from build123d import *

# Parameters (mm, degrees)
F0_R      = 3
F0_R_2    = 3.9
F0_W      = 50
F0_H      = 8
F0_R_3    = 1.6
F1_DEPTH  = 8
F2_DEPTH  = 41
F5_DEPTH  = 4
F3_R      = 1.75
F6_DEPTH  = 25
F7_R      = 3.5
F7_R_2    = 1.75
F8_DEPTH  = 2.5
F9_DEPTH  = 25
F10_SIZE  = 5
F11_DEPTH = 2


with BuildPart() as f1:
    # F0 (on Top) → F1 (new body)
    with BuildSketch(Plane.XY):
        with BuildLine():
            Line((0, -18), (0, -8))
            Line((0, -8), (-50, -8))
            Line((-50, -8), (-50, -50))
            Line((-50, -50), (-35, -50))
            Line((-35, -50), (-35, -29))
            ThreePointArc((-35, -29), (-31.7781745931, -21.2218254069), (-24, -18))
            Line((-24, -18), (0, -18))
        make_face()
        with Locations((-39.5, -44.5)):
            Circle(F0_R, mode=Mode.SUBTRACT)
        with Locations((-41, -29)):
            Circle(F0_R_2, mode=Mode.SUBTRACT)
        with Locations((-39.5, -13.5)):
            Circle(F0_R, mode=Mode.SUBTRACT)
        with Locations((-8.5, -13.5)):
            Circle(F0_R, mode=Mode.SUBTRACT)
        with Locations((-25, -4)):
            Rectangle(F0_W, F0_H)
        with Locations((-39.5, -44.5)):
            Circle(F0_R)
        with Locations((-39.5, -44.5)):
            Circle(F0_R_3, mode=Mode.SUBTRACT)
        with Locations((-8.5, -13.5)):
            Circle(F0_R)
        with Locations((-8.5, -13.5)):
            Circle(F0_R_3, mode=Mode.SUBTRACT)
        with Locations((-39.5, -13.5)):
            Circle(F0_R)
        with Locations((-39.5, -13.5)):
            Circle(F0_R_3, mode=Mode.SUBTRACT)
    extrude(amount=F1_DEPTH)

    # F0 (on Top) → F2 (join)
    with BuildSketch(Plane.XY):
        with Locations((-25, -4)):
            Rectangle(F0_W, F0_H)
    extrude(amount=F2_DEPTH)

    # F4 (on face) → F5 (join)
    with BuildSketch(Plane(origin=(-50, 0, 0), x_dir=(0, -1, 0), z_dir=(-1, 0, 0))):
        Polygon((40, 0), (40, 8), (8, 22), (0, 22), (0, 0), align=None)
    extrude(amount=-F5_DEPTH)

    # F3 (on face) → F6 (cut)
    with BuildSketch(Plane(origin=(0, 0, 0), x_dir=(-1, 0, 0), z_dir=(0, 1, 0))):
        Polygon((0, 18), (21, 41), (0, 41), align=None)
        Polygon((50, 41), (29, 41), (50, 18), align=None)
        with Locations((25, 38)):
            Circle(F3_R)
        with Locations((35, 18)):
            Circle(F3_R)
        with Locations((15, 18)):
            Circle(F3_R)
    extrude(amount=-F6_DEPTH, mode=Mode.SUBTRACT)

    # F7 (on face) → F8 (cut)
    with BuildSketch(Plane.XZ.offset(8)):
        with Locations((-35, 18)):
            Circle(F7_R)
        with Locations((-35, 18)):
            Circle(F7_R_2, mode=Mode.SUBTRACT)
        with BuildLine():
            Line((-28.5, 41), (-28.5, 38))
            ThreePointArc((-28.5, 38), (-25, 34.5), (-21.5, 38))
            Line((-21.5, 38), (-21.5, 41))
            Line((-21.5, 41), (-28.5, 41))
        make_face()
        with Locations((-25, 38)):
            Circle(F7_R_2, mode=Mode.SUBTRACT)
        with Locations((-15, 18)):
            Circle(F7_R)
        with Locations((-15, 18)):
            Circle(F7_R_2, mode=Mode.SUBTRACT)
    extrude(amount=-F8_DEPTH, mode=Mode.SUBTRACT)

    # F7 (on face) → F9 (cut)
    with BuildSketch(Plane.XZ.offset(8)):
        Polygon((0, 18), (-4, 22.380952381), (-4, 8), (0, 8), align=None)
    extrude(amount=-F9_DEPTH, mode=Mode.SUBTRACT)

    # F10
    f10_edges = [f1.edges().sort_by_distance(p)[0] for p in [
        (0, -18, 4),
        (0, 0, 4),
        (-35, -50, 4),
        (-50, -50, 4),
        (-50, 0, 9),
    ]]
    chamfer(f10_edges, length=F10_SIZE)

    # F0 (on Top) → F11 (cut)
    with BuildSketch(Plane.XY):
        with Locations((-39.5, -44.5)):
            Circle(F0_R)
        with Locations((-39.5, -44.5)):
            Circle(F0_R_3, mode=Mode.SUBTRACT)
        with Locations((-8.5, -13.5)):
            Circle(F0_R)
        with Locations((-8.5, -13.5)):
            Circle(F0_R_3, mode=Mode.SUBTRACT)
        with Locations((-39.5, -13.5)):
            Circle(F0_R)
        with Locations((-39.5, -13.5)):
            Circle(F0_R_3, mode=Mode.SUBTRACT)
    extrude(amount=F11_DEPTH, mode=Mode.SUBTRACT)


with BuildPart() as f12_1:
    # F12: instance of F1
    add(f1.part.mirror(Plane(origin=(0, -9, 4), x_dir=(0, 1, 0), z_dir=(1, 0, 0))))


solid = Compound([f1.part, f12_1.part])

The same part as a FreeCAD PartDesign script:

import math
import FreeCAD as App
import Part
import Sketcher
from FreeCAD import Vector


def edges_at(feature, points):
    """Names of the edges that pass closest to the given points."""
    edges = feature.Shape.Edges
    near = lambda p: min(range(len(edges)), key=lambda i: edges[i].distToShape(Part.Vertex(*p))[0])
    return sorted({f"Edge{near(p) + 1}" for p in points})

doc = App.newDocument("Part")
body = doc.addObject("PartDesign::Body", "Body")

# Sketch on XY plane
sketch1 = doc.addObject("Sketcher::SketchObject", "Sketch")
body.addObject(sketch1)
sketch1.AttachmentSupport = (doc.XY_Plane, [""])
sketch1.MapMode = "FlatFace"
sketch1.addGeometry([
    Part.LineSegment(Vector(0, -18, 0), Vector(0, 0, 0)),  # 0
    Part.LineSegment(Vector(0, 0, 0), Vector(-50, 0, 0)),  # 1
    Part.LineSegment(Vector(-50, 0, 0), Vector(-50, -50, 0)),  # 2
    Part.LineSegment(Vector(-50, -50, 0), Vector(-35, -50, 0)),  # 3
    Part.LineSegment(Vector(-35, -50, 0), Vector(-35, -29, 0)),  # 4
    Part.ArcOfCircle(Part.Circle(Vector(-24, -29, 0), Vector(0, 0, 1), 11), math.radians(90), math.radians(180)),  # 5
    Part.LineSegment(Vector(-24, -18, 0), Vector(0, -18, 0)),  # 6
    Part.Circle(Vector(-39.5, -44.5, 0), Vector(0, 0, 1), 1.6),  # 7
    Part.Circle(Vector(-41, -29, 0), Vector(0, 0, 1), 3.9),  # 8
    Part.Circle(Vector(-39.5, -13.5, 0), Vector(0, 0, 1), 1.6),  # 9
    Part.Circle(Vector(-8.5, -13.5, 0), Vector(0, 0, 1), 1.6),  # 10
], False)
sketch1.addConstraint([
    Sketcher.Constraint("Coincident", 0, 2, 1, 1),
    Sketcher.Constraint("Coincident", 1, 2, 2, 1),
    Sketcher.Constraint("Coincident", 2, 2, 3, 1),
    Sketcher.Constraint("Coincident", 3, 2, 4, 1),
    Sketcher.Constraint("Tangent", 4, 2, 5, 2),
    Sketcher.Constraint("Tangent", 5, 1, 6, 1),
    Sketcher.Constraint("Coincident", 6, 2, 0, 1),
    Sketcher.Constraint("Vertical", 0),
    Sketcher.Constraint("Horizontal", 1),
    Sketcher.Constraint("Vertical", 2),
    Sketcher.Constraint("Horizontal", 3),
    Sketcher.Constraint("Vertical", 4),
    Sketcher.Constraint("Horizontal", 6),
    Sketcher.Constraint("Coincident", 0, 2, -1, 1),
    Sketcher.Constraint("Equal", 7, 9),
    Sketcher.Constraint("Equal", 9, 10),
    Sketcher.Constraint("Horizontal", 5, 3, 8, 3),
    Sketcher.Constraint("Horizontal", 9, 3, 10, 3),
    Sketcher.Constraint("Vertical", 7, 3, 9, 3),
    Sketcher.Constraint("Equal", 1, 2),
    Sketcher.Constraint("Radius", 5, 11.0),
    Sketcher.Constraint("Diameter", 7, 3.2),
    Sketcher.Constraint("Diameter", 8, 7.8),
    Sketcher.Constraint("DistanceX", 1, 2, 1, 1, 50.0),
    Sketcher.Constraint("DistanceX", 3, 1, 3, 2, 15.0),
    Sketcher.Constraint("DistanceY", 0, 1, 0, 2, 18.0),
    Sketcher.Constraint("DistanceX", 8, 3, -1, 1, 41.0),
    Sketcher.Constraint("DistanceY", 7, 3, 9, 3, 31.0),
    Sketcher.Constraint("DistanceX", 9, 3, 10, 3, 31.0),
    Sketcher.Constraint("DistanceX", 7, 3, -1, 1, 39.5),
    Sketcher.Constraint("DistanceY", 7, 3, -1, 1, 44.5),
])
pad1 = doc.addObject("PartDesign::Pad", "Pad")
body.addObject(pad1)
pad1.Profile = sketch1
pad1.Length = 8

# Sketch on XY plane
sketch2 = doc.addObject("Sketcher::SketchObject", "Sketch001")
body.addObject(sketch2)
sketch2.AttachmentSupport = (doc.XY_Plane, [""])
sketch2.MapMode = "FlatFace"
sketch2.addGeometry([
    Part.LineSegment(Vector(-50, 0, 0), Vector(-50, -8, 0)),
    Part.LineSegment(Vector(-50, -8, 0), Vector(0, -8, 0)),
    Part.LineSegment(Vector(0, -8, 0), Vector(0, 0, 0)),
    Part.LineSegment(Vector(0, 0, 0), Vector(-50, 0, 0)),
], False)
sketch2.addConstraint([
    Sketcher.Constraint("Coincident", 0, 2, 1, 1),
    Sketcher.Constraint("Coincident", 1, 2, 2, 1),
    Sketcher.Constraint("Coincident", 2, 2, 3, 1),
    Sketcher.Constraint("Coincident", 3, 2, 0, 1),
    Sketcher.Constraint("Vertical", 0),
    Sketcher.Constraint("Horizontal", 1),
    Sketcher.Constraint("Vertical", 2),
    Sketcher.Constraint("Horizontal", 3),
    Sketcher.Constraint("Coincident", 2, 2, -1, 1),
    Sketcher.Constraint("DistanceX", 1, 1, 1, 2, 50.0),
    Sketcher.Constraint("DistanceY", 0, 2, 0, 1, 8.0),
])
pad2 = doc.addObject("PartDesign::Pad", "Pad001")
body.addObject(pad2)
pad2.Profile = sketch2
pad2.Length = 41

# Sketch on YZ plane
sketch3 = doc.addObject("Sketcher::SketchObject", "Sketch002")
body.addObject(sketch3)
sketch3.AttachmentSupport = (doc.YZ_Plane, [""])
sketch3.MapMode = "FlatFace"
sketch3.AttachmentOffset = App.Placement(Vector(0, 0, -50), App.Rotation())
sketch3.addGeometry([
    Part.LineSegment(Vector(-40, 0, 0), Vector(-40, 8, 0)),  # 0
    Part.LineSegment(Vector(-40, 8, 0), Vector(-8, 22, 0)),  # 1
    Part.LineSegment(Vector(-8, 22, 0), Vector(0, 22, 0)),  # 2
    Part.LineSegment(Vector(0, 22, 0), Vector(0, 0, 0)),  # 3
    Part.LineSegment(Vector(0, 0, 0), Vector(-40, 0, 0)),  # 4
], False)
sketch3.addConstraint([
    Sketcher.Constraint("Coincident", 0, 2, 1, 1),
    Sketcher.Constraint("Coincident", 1, 2, 2, 1),
    Sketcher.Constraint("Coincident", 2, 2, 3, 1),
    Sketcher.Constraint("Coincident", 3, 2, 4, 1),
    Sketcher.Constraint("Coincident", 4, 2, 0, 1),
    Sketcher.Constraint("Vertical", 0),
    Sketcher.Constraint("Horizontal", 2),
    Sketcher.Constraint("Vertical", 3),
    Sketcher.Constraint("Horizontal", 4),
    Sketcher.Constraint("Coincident", 3, 2, -1, 1),
    Sketcher.Constraint("Equal", 2, 0),
    Sketcher.Constraint("DistanceX", 2, 1, 2, 2, 8.0),
    Sketcher.Constraint("DistanceX", 4, 2, 4, 1, 40.0),
    Sketcher.Constraint("DistanceY", 3, 2, 3, 1, 22.0),
])
pad3 = doc.addObject("PartDesign::Pad", "Pad002")
body.addObject(pad3)
pad3.Profile = sketch3
pad3.Length = 4

# Sketch on XZ plane
sketch4 = doc.addObject("Sketcher::SketchObject", "Sketch003")
body.addObject(sketch4)
sketch4.AttachmentSupport = (doc.XZ_Plane, [""])
sketch4.MapMode = "FlatFace"
sketch4.addGeometry([
    Part.LineSegment(Vector(0, 18, 0), Vector(-21, 41, 0)),  # 0
    Part.LineSegment(Vector(-21, 41, 0), Vector(0, 41, 0)),  # 1
    Part.LineSegment(Vector(0, 41, 0), Vector(0, 18, 0)),  # 2
    Part.LineSegment(Vector(-50, 41, 0), Vector(-29, 41, 0)),  # 3
    Part.LineSegment(Vector(-29, 41, 0), Vector(-50, 18, 0)),  # 4
    Part.LineSegment(Vector(-50, 18, 0), Vector(-50, 41, 0)),  # 5
    Part.Circle(Vector(-25, 38, 0), Vector(0, 0, 1), 1.75),  # 6
    Part.Circle(Vector(-35, 18, 0), Vector(0, 0, 1), 1.75),  # 7
    Part.Circle(Vector(-15, 18, 0), Vector(0, 0, 1), 1.75),  # 8
], False)
sketch4.addConstraint([
    Sketcher.Constraint("Coincident", 0, 2, 1, 1),
    Sketcher.Constraint("Coincident", 1, 2, 2, 1),
    Sketcher.Constraint("Coincident", 2, 2, 0, 1),
    Sketcher.Constraint("Coincident", 3, 2, 4, 1),
    Sketcher.Constraint("Coincident", 4, 2, 5, 1),
    Sketcher.Constraint("Coincident", 5, 2, 3, 1),
    Sketcher.Constraint("Horizontal", 1),
    Sketcher.Constraint("Vertical", 2),
    Sketcher.Constraint("Horizontal", 3),
    Sketcher.Constraint("Vertical", 5),
    Sketcher.Constraint("Equal", 6, 7),
    Sketcher.Constraint("Equal", 7, 8),
    Sketcher.Constraint("PointOnObject", 1, 2, -2),
    Sketcher.Constraint("Horizontal", 7, 3, 8, 3),
    Sketcher.Constraint("Horizontal", 8, 3, 2, 2),
    Sketcher.Constraint("Horizontal", 1, 2, 3, 2),
    Sketcher.Constraint("Horizontal", 2, 2, 4, 2),
    Sketcher.Constraint("Equal", 1, 3),
    Sketcher.Constraint("Diameter", 6, 3.5),
    Sketcher.Constraint("DistanceX", 1, 1, 1, 2, 21.0),
    Sketcher.Constraint("DistanceY", 2, 2, 2, 1, 23.0),
    Sketcher.Constraint("DistanceX", 6, 3, -1, 1, 25.0),
    Sketcher.Constraint("DistanceY", -1, 1, 6, 3, 38.0),
    Sketcher.Constraint("DistanceX", 7, 3, -1, 1, 35.0),
    Sketcher.Constraint("DistanceY", -1, 1, 7, 3, 18.0),
    Sketcher.Constraint("DistanceX", 8, 3, -1, 1, 15.0),
    Sketcher.Constraint("DistanceX", 3, 2, -1, 1, 29.0),
])
pocket1 = doc.addObject("PartDesign::Pocket", "Pocket")
body.addObject(pocket1)
pocket1.Profile = sketch4
pocket1.Length = 25
pocket1.Reversed = True

# Sketch on XZ plane
sketch5 = doc.addObject("Sketcher::SketchObject", "Sketch004")
body.addObject(sketch5)
sketch5.AttachmentSupport = (doc.XZ_Plane, [""])
sketch5.MapMode = "FlatFace"
sketch5.AttachmentOffset = App.Placement(Vector(0, 0, 8), App.Rotation())
sketch5.addGeometry([
    Part.Circle(Vector(-35, 18, 0), Vector(0, 0, 1), 3.5),  # 0
    Part.Circle(Vector(-35, 18, 0), Vector(0, 0, 1), 1.75),  # 1
    Part.LineSegment(Vector(-28.5, 41, 0), Vector(-28.5, 38, 0)),  # 2
    Part.ArcOfCircle(Part.Circle(Vector(-25, 38, 0), Vector(0, 0, 1), 3.5), math.radians(180), math.radians(360)),  # 3
    Part.LineSegment(Vector(-21.5, 38, 0), Vector(-21.5, 41, 0)),  # 4
    Part.LineSegment(Vector(-21.5, 41, 0), Vector(-28.5, 41, 0)),  # 5
    Part.Circle(Vector(-25, 38, 0), Vector(0, 0, 1), 1.75),  # 6
    Part.Circle(Vector(-15, 18, 0), Vector(0, 0, 1), 3.5),  # 7
    Part.Circle(Vector(-15, 18, 0), Vector(0, 0, 1), 1.75),  # 8
], False)
sketch5.addConstraint([
    Sketcher.Constraint("Tangent", 2, 2, 3, 1),
    Sketcher.Constraint("Tangent", 3, 2, 4, 1),
    Sketcher.Constraint("Coincident", 4, 2, 5, 1),
    Sketcher.Constraint("Coincident", 5, 2, 2, 1),
    Sketcher.Constraint("Vertical", 2),
    Sketcher.Constraint("Vertical", 4),
    Sketcher.Constraint("Horizontal", 5),
    Sketcher.Constraint("Coincident", 1, 3, 0, 3),
    Sketcher.Constraint("Coincident", 6, 3, 3, 3),
    Sketcher.Constraint("Coincident", 8, 3, 7, 3),
    Sketcher.Constraint("Equal", 0, 3),
    Sketcher.Constraint("Equal", 1, 6),
    Sketcher.Constraint("Equal", 3, 7),
    Sketcher.Constraint("Equal", 6, 8),
    Sketcher.Constraint("Horizontal", 1, 3, 7, 3),
    Sketcher.Constraint("Diameter", 0, 7.0),
    Sketcher.Constraint("Diameter", 1, 3.5),
    Sketcher.Constraint("DistanceY", 2, 2, 2, 1, 3.0),
    Sketcher.Constraint("DistanceX", 0, 3, -1, 1, 35.0),
    Sketcher.Constraint("DistanceY", -1, 1, 0, 3, 18.0),
    Sketcher.Constraint("DistanceX", 3, 3, -1, 1, 25.0),
    Sketcher.Constraint("DistanceY", -1, 1, 3, 3, 38.0),
    Sketcher.Constraint("DistanceX", 7, 3, -1, 1, 15.0),
])
pocket2 = doc.addObject("PartDesign::Pocket", "Pocket001")
body.addObject(pocket2)
pocket2.Profile = sketch5
pocket2.Length = 2.5

# Sketch on XZ plane
sketch6 = doc.addObject("Sketcher::SketchObject", "Sketch005")
body.addObject(sketch6)
sketch6.AttachmentSupport = (doc.XZ_Plane, [""])
sketch6.MapMode = "FlatFace"
sketch6.AttachmentOffset = App.Placement(Vector(0, 0, 8), App.Rotation())
sketch6.addGeometry([
    Part.LineSegment(Vector(0, 18, 0), Vector(-4, 22.380952, 0)),
    Part.LineSegment(Vector(-4, 22.380952, 0), Vector(-4, 8, 0)),
    Part.LineSegment(Vector(-4, 8, 0), Vector(0, 8, 0)),
    Part.LineSegment(Vector(0, 8, 0), Vector(0, 18, 0)),
], False)
sketch6.addConstraint([
    Sketcher.Constraint("Coincident", 0, 2, 1, 1),
    Sketcher.Constraint("Coincident", 1, 2, 2, 1),
    Sketcher.Constraint("Coincident", 2, 2, 3, 1),
    Sketcher.Constraint("Coincident", 3, 2, 0, 1),
    Sketcher.Constraint("Vertical", 1),
    Sketcher.Constraint("Horizontal", 2),
    Sketcher.Constraint("Vertical", 3),
    Sketcher.Constraint("PointOnObject", 2, 2, -2),
    Sketcher.Constraint("DistanceX", 2, 1, 2, 2, 4.0),
    Sketcher.Constraint("DistanceY", 3, 1, 3, 2, 10.0),
    Sketcher.Constraint("DistanceY", -1, 1, 1, 2, 8.0),
    Sketcher.Constraint("DistanceY", 1, 2, 1, 1, 14.380952),
])
pocket3 = doc.addObject("PartDesign::Pocket", "Pocket002")
body.addObject(pocket3)
pocket3.Profile = sketch6
pocket3.Length = 25
doc.recompute()

chamfer = doc.addObject("PartDesign::Chamfer", "Chamfer")
body.addObject(chamfer)
chamfer.Base = (pocket3, edges_at(pocket3, [
    (0, -18, 4),
    (0, 0, 4),
    (-35, -50, 4),
    (-50, -50, 4),
    (-50, 0, 9),
]))
chamfer.Size = 5

# Sketch on XY plane
sketch7 = doc.addObject("Sketcher::SketchObject", "Sketch006")
body.addObject(sketch7)
sketch7.AttachmentSupport = (doc.XY_Plane, [""])
sketch7.MapMode = "FlatFace"
sketch7.addGeometry([
    Part.Circle(Vector(-39.5, -44.5, 0), Vector(0, 0, 1), 3),  # 0
    Part.Circle(Vector(-39.5, -44.5, 0), Vector(0, 0, 1), 1.6),  # 1
    Part.Circle(Vector(-8.5, -13.5, 0), Vector(0, 0, 1), 3),  # 2
    Part.Circle(Vector(-8.5, -13.5, 0), Vector(0, 0, 1), 1.6),  # 3
    Part.Circle(Vector(-39.5, -13.5, 0), Vector(0, 0, 1), 3),  # 4
    Part.Circle(Vector(-39.5, -13.5, 0), Vector(0, 0, 1), 1.6),  # 5
], False)
sketch7.addConstraint([
    Sketcher.Constraint("Coincident", 1, 3, 0, 3),
    Sketcher.Constraint("Coincident", 3, 3, 2, 3),
    Sketcher.Constraint("Coincident", 5, 3, 4, 3),
    Sketcher.Constraint("Equal", 0, 2),
    Sketcher.Constraint("Equal", 1, 3),
    Sketcher.Constraint("Equal", 2, 4),
    Sketcher.Constraint("Equal", 3, 5),
    Sketcher.Constraint("Horizontal", 3, 3, 4, 3),
    Sketcher.Constraint("Vertical", 1, 3, 4, 3),
    Sketcher.Constraint("Diameter", 0, 6.0),
    Sketcher.Constraint("Diameter", 1, 3.2),
    Sketcher.Constraint("DistanceX", 0, 3, 2, 3, 31.0),
    Sketcher.Constraint("DistanceY", 0, 3, 2, 3, 31.0),
    Sketcher.Constraint("DistanceX", 0, 3, -1, 1, 39.5),
    Sketcher.Constraint("DistanceY", 0, 3, -1, 1, 44.5),
])
pocket4 = doc.addObject("PartDesign::Pocket", "Pocket003")
body.addObject(pocket4)
pocket4.Profile = sketch7
pocket4.Length = 2
pocket4.Reversed = True
body2 = doc.addObject("PartDesign::Body", "Body001")
doc.recompute()

mirroring = doc.addObject("Part::Mirroring", "Mirroring")
mirroring.Source = body
mirroring.Base = Vector(0, -9, 4)
mirroring.Normal = Vector(1, 0, 0)
body2.BaseFeature = mirroring
doc.recompute()
mirroring.Visibility = False

doc.recompute()
